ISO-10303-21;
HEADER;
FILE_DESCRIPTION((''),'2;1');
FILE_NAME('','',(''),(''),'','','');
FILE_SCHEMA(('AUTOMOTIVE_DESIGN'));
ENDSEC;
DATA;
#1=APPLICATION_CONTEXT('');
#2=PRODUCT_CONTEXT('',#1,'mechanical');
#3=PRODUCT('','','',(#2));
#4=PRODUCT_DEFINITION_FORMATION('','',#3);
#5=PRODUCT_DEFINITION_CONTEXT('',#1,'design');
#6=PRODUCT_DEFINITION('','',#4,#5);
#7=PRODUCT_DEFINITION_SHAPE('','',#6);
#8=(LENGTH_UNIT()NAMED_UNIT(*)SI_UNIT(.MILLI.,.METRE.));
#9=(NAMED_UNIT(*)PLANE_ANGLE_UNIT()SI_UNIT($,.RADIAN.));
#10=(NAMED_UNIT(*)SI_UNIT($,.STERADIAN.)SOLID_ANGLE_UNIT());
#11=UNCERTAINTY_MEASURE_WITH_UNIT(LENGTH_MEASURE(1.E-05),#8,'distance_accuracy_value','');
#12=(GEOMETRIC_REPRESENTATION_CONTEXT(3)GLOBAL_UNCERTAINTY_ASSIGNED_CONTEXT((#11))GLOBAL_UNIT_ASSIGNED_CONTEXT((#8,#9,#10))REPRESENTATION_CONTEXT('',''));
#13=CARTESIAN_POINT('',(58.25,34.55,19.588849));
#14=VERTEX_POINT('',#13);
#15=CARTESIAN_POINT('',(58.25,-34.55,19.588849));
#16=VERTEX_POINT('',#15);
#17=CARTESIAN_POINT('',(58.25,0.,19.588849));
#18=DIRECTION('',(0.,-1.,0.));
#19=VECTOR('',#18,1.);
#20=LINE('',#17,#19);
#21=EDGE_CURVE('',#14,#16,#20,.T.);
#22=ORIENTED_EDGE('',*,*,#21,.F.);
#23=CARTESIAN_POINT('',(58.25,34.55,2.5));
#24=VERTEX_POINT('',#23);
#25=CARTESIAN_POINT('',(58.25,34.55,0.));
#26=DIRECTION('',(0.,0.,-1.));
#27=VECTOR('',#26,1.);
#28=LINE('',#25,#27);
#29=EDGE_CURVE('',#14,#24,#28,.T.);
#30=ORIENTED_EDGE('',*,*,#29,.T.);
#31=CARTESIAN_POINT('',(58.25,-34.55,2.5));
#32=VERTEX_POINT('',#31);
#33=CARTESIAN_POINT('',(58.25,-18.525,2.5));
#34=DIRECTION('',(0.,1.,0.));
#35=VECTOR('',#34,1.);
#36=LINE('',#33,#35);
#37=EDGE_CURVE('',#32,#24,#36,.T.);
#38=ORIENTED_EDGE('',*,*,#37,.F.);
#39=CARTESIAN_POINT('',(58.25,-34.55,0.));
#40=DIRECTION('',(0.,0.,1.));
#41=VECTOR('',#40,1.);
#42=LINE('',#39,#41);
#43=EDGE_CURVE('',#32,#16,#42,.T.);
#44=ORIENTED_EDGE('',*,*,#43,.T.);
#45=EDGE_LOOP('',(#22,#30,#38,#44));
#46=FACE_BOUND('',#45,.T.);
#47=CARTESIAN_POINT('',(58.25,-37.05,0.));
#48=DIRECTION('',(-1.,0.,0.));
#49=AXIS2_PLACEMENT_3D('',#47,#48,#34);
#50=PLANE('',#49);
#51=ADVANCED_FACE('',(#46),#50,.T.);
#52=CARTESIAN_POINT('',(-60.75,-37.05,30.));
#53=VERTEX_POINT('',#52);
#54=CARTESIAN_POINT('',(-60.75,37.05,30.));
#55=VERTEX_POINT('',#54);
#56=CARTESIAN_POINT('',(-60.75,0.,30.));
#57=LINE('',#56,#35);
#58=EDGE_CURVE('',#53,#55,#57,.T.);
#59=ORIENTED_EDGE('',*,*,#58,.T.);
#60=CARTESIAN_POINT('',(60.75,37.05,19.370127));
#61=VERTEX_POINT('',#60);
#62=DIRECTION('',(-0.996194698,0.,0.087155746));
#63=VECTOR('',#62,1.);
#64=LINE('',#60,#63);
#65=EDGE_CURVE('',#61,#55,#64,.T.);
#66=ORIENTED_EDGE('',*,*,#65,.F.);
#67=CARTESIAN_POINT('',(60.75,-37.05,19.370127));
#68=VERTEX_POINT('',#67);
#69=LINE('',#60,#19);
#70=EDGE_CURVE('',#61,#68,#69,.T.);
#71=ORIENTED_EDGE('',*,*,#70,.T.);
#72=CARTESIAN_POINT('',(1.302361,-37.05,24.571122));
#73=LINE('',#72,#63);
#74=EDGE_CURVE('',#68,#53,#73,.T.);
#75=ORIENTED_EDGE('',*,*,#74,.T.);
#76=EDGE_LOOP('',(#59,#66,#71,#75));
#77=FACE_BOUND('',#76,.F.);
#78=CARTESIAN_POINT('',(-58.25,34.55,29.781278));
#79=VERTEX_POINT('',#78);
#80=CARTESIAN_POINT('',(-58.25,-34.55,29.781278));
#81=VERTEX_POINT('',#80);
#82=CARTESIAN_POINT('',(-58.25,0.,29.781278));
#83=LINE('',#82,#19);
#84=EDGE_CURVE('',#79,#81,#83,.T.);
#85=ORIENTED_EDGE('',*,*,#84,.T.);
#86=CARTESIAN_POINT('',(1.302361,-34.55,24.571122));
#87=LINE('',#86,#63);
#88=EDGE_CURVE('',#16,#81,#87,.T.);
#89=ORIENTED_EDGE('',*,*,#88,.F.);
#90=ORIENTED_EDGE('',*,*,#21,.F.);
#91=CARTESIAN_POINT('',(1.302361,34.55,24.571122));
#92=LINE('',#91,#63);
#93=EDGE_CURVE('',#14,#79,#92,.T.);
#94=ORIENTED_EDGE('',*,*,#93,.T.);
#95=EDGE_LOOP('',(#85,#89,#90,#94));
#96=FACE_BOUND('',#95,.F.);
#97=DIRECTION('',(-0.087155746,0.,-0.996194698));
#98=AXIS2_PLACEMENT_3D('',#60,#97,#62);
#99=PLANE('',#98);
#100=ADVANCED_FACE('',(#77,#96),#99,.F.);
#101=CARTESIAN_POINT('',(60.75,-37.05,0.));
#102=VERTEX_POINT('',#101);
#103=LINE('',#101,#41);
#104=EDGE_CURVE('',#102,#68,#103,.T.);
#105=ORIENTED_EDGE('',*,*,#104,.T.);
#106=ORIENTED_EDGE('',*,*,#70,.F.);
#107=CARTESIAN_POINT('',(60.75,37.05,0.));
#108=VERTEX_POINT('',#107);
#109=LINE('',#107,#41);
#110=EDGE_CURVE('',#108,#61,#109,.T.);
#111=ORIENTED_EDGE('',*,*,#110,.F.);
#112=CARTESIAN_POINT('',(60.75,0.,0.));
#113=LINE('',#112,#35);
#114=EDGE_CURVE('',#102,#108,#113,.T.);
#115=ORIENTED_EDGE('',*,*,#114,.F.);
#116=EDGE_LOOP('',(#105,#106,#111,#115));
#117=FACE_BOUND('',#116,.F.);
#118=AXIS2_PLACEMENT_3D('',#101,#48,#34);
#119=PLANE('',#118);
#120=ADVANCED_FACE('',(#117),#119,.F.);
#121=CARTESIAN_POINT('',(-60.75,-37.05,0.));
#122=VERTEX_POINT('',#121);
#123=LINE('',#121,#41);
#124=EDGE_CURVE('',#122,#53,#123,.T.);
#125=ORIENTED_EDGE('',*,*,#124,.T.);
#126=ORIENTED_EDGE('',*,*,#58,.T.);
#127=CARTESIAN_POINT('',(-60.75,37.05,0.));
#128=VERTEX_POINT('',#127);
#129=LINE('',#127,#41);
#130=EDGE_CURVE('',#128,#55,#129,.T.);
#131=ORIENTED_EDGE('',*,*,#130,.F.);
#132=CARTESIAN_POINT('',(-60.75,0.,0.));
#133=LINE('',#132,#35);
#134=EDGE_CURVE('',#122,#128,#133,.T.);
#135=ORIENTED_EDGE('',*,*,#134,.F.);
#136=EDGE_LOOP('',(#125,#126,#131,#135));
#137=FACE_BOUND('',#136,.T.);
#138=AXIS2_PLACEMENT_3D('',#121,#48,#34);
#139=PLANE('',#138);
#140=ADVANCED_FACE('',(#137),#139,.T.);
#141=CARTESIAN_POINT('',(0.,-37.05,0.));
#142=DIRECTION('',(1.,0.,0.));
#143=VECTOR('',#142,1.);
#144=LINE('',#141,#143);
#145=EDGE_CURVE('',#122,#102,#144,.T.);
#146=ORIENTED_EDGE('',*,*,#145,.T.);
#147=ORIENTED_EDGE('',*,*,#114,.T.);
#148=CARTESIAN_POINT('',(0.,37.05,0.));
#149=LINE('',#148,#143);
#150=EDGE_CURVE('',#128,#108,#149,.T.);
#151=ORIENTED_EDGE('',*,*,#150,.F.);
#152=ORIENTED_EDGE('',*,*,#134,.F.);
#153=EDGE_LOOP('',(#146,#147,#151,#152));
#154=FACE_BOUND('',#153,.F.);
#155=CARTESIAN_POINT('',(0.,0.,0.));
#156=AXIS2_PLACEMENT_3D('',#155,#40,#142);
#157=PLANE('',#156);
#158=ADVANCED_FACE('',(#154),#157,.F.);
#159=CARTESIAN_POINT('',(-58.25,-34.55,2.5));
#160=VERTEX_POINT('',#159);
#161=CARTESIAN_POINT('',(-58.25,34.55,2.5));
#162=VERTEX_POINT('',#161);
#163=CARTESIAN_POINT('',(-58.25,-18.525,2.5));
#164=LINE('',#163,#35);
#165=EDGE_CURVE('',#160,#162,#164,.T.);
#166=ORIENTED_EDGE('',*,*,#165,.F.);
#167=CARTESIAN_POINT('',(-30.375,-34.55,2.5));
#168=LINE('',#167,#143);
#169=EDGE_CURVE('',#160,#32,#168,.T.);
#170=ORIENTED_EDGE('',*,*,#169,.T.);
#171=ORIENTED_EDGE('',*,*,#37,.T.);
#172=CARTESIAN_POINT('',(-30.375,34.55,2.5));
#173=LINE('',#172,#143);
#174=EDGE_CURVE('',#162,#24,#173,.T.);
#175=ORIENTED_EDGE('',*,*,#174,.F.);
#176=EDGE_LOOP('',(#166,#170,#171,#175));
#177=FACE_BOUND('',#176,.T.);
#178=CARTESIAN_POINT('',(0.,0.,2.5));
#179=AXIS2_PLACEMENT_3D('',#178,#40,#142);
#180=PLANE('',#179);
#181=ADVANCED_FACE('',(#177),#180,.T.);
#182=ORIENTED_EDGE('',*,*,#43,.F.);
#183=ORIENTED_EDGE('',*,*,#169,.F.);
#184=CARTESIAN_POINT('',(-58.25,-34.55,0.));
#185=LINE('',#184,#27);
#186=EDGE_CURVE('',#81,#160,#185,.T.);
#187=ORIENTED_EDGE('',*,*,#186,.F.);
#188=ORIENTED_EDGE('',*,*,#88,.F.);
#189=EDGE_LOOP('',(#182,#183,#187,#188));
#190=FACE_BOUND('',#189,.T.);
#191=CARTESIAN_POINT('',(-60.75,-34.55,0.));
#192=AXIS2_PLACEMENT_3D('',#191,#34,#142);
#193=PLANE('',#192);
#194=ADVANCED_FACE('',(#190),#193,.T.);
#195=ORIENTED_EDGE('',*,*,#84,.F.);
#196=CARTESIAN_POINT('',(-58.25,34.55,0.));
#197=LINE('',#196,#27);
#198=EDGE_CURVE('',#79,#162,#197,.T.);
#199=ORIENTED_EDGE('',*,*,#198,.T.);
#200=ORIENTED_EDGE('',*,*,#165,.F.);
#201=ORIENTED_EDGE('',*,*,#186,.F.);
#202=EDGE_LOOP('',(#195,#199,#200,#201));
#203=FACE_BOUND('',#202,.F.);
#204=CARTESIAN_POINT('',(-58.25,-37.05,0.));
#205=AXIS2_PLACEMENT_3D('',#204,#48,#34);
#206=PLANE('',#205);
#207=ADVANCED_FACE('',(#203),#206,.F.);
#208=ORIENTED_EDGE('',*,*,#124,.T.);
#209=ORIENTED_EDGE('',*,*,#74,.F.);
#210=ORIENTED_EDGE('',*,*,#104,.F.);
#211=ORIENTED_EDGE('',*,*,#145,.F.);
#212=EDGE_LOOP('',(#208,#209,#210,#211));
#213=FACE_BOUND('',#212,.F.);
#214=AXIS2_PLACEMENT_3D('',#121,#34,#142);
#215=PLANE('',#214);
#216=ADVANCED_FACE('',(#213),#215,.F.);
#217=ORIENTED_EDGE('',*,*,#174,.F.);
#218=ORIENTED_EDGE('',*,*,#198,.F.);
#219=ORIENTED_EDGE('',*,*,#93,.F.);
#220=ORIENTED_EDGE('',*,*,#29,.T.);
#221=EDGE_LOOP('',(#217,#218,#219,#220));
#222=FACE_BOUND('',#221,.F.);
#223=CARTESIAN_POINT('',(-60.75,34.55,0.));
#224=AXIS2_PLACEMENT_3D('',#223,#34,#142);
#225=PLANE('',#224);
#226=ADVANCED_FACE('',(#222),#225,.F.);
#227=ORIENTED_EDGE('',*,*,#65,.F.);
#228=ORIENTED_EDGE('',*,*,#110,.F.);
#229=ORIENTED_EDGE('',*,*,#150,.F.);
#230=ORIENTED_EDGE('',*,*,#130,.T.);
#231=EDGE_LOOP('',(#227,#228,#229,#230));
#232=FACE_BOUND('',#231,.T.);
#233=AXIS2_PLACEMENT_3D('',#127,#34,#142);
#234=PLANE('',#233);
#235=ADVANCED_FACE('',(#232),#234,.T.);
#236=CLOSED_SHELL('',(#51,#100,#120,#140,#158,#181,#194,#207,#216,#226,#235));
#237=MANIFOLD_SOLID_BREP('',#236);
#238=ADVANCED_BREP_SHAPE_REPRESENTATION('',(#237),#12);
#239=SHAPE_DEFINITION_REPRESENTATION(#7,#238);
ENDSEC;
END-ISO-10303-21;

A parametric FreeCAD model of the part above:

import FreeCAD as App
import Part
import Sketcher

V = App.Vector
Q = App.Units.Quantity


def faces_at(feature, points):
    """Names of the faces that lie closest to the given points."""
    faces = feature.Shape.Faces
    near = lambda p: min(range(len(faces)), key=lambda i: faces[i].distToShape(Part.Vertex(*p))[0])
    return sorted({f"Face{near(p) + 1}" for p in points})


def add_polygon(sketch, points):
    """Adds a closed chain of lines whose ends are joined by coincident constraints."""
    first, n = sketch.GeometryCount, len(points)
    for a, b in zip(points, points[1:] + points[:1]):
        sketch.addGeometry(Part.LineSegment(App.Vector(*a, 0), App.Vector(*b, 0)), False)
    for i in range(n):
        sketch.addConstraint(Sketcher.Constraint("Coincident", first + i, 2, first + (i + 1) % n, 1))

doc = App.newDocument("Part")
body = doc.addObject("PartDesign::Body", "Body")

# Sketch on XY plane
sketch1 = body.newObject("Sketcher::SketchObject", "Sketch")
sketch1.AttachmentSupport = (doc.getObject("XY_Plane"), [""])
sketch1.MapMode = "FlatFace"
add_polygon(sketch1, [(-60.75, 37.05), (-60.75, -37.05), (60.75, -37.05), (60.75, 37.05)])  # lines 0-3
sketch1.addConstraint([
    Sketcher.Constraint("Vertical", 0),
    Sketcher.Constraint("Horizontal", 1),
    Sketcher.Constraint("Vertical", 2),
    Sketcher.Constraint("Horizontal", 3),
    Sketcher.Constraint("Symmetric", 0, 2, 2, 2, -1, 1),
    Sketcher.Constraint("DistanceX", 1, 1, 1, 2, 121.5),
    Sketcher.Constraint("DistanceY", 0, 2, 0, 1, 74.1),
])
pad1 = body.newObject("PartDesign::Pad", "Pad")
pad1.Profile = sketch1
pad1.Length = 30
doc.recompute()

thickness = body.newObject("PartDesign::Thickness", "Thickness")
thickness.Base = (pad1, faces_at(pad1, [(0, 0, 30)]))
thickness.Value = 2.5
thickness.Reversed = True
thickness.Join = "Arc"

# Sketch on XZ plane
sketch2 = body.newObject("Sketcher::SketchObject", "Sketch001")
sketch2.AttachmentSupport = (doc.getObject("XZ_Plane"), [""])
sketch2.MapMode = "FlatFace"
sketch2.AttachmentOffset = App.Placement(V(0, 0, -37.05), App.Rotation())
add_polygon(sketch2, [(60.75, 19.370127), (-60.75, 30), (60.75, 30)])  # lines 0-2
sketch2.addConstraint([
    Sketcher.Constraint("Horizontal", 1),
    Sketcher.Constraint("Vertical", 2),
    Sketcher.Constraint("Angle", 0, Q("175 deg")),
    Sketcher.Constraint("DistanceX", 1, 1, 1, 2, 121.5),
    Sketcher.Constraint("DistanceY", -1, 1, 0, 2, 30.0),
    Sketcher.Constraint("DistanceX", 0, 2, -1, 1, 60.75),
])
pocket1 = body.newObject("PartDesign::Pocket", "Pocket")
pocket1.Profile = sketch2
pocket1.Length = 79.2
pocket1.Reversed = True

doc.recompute()
